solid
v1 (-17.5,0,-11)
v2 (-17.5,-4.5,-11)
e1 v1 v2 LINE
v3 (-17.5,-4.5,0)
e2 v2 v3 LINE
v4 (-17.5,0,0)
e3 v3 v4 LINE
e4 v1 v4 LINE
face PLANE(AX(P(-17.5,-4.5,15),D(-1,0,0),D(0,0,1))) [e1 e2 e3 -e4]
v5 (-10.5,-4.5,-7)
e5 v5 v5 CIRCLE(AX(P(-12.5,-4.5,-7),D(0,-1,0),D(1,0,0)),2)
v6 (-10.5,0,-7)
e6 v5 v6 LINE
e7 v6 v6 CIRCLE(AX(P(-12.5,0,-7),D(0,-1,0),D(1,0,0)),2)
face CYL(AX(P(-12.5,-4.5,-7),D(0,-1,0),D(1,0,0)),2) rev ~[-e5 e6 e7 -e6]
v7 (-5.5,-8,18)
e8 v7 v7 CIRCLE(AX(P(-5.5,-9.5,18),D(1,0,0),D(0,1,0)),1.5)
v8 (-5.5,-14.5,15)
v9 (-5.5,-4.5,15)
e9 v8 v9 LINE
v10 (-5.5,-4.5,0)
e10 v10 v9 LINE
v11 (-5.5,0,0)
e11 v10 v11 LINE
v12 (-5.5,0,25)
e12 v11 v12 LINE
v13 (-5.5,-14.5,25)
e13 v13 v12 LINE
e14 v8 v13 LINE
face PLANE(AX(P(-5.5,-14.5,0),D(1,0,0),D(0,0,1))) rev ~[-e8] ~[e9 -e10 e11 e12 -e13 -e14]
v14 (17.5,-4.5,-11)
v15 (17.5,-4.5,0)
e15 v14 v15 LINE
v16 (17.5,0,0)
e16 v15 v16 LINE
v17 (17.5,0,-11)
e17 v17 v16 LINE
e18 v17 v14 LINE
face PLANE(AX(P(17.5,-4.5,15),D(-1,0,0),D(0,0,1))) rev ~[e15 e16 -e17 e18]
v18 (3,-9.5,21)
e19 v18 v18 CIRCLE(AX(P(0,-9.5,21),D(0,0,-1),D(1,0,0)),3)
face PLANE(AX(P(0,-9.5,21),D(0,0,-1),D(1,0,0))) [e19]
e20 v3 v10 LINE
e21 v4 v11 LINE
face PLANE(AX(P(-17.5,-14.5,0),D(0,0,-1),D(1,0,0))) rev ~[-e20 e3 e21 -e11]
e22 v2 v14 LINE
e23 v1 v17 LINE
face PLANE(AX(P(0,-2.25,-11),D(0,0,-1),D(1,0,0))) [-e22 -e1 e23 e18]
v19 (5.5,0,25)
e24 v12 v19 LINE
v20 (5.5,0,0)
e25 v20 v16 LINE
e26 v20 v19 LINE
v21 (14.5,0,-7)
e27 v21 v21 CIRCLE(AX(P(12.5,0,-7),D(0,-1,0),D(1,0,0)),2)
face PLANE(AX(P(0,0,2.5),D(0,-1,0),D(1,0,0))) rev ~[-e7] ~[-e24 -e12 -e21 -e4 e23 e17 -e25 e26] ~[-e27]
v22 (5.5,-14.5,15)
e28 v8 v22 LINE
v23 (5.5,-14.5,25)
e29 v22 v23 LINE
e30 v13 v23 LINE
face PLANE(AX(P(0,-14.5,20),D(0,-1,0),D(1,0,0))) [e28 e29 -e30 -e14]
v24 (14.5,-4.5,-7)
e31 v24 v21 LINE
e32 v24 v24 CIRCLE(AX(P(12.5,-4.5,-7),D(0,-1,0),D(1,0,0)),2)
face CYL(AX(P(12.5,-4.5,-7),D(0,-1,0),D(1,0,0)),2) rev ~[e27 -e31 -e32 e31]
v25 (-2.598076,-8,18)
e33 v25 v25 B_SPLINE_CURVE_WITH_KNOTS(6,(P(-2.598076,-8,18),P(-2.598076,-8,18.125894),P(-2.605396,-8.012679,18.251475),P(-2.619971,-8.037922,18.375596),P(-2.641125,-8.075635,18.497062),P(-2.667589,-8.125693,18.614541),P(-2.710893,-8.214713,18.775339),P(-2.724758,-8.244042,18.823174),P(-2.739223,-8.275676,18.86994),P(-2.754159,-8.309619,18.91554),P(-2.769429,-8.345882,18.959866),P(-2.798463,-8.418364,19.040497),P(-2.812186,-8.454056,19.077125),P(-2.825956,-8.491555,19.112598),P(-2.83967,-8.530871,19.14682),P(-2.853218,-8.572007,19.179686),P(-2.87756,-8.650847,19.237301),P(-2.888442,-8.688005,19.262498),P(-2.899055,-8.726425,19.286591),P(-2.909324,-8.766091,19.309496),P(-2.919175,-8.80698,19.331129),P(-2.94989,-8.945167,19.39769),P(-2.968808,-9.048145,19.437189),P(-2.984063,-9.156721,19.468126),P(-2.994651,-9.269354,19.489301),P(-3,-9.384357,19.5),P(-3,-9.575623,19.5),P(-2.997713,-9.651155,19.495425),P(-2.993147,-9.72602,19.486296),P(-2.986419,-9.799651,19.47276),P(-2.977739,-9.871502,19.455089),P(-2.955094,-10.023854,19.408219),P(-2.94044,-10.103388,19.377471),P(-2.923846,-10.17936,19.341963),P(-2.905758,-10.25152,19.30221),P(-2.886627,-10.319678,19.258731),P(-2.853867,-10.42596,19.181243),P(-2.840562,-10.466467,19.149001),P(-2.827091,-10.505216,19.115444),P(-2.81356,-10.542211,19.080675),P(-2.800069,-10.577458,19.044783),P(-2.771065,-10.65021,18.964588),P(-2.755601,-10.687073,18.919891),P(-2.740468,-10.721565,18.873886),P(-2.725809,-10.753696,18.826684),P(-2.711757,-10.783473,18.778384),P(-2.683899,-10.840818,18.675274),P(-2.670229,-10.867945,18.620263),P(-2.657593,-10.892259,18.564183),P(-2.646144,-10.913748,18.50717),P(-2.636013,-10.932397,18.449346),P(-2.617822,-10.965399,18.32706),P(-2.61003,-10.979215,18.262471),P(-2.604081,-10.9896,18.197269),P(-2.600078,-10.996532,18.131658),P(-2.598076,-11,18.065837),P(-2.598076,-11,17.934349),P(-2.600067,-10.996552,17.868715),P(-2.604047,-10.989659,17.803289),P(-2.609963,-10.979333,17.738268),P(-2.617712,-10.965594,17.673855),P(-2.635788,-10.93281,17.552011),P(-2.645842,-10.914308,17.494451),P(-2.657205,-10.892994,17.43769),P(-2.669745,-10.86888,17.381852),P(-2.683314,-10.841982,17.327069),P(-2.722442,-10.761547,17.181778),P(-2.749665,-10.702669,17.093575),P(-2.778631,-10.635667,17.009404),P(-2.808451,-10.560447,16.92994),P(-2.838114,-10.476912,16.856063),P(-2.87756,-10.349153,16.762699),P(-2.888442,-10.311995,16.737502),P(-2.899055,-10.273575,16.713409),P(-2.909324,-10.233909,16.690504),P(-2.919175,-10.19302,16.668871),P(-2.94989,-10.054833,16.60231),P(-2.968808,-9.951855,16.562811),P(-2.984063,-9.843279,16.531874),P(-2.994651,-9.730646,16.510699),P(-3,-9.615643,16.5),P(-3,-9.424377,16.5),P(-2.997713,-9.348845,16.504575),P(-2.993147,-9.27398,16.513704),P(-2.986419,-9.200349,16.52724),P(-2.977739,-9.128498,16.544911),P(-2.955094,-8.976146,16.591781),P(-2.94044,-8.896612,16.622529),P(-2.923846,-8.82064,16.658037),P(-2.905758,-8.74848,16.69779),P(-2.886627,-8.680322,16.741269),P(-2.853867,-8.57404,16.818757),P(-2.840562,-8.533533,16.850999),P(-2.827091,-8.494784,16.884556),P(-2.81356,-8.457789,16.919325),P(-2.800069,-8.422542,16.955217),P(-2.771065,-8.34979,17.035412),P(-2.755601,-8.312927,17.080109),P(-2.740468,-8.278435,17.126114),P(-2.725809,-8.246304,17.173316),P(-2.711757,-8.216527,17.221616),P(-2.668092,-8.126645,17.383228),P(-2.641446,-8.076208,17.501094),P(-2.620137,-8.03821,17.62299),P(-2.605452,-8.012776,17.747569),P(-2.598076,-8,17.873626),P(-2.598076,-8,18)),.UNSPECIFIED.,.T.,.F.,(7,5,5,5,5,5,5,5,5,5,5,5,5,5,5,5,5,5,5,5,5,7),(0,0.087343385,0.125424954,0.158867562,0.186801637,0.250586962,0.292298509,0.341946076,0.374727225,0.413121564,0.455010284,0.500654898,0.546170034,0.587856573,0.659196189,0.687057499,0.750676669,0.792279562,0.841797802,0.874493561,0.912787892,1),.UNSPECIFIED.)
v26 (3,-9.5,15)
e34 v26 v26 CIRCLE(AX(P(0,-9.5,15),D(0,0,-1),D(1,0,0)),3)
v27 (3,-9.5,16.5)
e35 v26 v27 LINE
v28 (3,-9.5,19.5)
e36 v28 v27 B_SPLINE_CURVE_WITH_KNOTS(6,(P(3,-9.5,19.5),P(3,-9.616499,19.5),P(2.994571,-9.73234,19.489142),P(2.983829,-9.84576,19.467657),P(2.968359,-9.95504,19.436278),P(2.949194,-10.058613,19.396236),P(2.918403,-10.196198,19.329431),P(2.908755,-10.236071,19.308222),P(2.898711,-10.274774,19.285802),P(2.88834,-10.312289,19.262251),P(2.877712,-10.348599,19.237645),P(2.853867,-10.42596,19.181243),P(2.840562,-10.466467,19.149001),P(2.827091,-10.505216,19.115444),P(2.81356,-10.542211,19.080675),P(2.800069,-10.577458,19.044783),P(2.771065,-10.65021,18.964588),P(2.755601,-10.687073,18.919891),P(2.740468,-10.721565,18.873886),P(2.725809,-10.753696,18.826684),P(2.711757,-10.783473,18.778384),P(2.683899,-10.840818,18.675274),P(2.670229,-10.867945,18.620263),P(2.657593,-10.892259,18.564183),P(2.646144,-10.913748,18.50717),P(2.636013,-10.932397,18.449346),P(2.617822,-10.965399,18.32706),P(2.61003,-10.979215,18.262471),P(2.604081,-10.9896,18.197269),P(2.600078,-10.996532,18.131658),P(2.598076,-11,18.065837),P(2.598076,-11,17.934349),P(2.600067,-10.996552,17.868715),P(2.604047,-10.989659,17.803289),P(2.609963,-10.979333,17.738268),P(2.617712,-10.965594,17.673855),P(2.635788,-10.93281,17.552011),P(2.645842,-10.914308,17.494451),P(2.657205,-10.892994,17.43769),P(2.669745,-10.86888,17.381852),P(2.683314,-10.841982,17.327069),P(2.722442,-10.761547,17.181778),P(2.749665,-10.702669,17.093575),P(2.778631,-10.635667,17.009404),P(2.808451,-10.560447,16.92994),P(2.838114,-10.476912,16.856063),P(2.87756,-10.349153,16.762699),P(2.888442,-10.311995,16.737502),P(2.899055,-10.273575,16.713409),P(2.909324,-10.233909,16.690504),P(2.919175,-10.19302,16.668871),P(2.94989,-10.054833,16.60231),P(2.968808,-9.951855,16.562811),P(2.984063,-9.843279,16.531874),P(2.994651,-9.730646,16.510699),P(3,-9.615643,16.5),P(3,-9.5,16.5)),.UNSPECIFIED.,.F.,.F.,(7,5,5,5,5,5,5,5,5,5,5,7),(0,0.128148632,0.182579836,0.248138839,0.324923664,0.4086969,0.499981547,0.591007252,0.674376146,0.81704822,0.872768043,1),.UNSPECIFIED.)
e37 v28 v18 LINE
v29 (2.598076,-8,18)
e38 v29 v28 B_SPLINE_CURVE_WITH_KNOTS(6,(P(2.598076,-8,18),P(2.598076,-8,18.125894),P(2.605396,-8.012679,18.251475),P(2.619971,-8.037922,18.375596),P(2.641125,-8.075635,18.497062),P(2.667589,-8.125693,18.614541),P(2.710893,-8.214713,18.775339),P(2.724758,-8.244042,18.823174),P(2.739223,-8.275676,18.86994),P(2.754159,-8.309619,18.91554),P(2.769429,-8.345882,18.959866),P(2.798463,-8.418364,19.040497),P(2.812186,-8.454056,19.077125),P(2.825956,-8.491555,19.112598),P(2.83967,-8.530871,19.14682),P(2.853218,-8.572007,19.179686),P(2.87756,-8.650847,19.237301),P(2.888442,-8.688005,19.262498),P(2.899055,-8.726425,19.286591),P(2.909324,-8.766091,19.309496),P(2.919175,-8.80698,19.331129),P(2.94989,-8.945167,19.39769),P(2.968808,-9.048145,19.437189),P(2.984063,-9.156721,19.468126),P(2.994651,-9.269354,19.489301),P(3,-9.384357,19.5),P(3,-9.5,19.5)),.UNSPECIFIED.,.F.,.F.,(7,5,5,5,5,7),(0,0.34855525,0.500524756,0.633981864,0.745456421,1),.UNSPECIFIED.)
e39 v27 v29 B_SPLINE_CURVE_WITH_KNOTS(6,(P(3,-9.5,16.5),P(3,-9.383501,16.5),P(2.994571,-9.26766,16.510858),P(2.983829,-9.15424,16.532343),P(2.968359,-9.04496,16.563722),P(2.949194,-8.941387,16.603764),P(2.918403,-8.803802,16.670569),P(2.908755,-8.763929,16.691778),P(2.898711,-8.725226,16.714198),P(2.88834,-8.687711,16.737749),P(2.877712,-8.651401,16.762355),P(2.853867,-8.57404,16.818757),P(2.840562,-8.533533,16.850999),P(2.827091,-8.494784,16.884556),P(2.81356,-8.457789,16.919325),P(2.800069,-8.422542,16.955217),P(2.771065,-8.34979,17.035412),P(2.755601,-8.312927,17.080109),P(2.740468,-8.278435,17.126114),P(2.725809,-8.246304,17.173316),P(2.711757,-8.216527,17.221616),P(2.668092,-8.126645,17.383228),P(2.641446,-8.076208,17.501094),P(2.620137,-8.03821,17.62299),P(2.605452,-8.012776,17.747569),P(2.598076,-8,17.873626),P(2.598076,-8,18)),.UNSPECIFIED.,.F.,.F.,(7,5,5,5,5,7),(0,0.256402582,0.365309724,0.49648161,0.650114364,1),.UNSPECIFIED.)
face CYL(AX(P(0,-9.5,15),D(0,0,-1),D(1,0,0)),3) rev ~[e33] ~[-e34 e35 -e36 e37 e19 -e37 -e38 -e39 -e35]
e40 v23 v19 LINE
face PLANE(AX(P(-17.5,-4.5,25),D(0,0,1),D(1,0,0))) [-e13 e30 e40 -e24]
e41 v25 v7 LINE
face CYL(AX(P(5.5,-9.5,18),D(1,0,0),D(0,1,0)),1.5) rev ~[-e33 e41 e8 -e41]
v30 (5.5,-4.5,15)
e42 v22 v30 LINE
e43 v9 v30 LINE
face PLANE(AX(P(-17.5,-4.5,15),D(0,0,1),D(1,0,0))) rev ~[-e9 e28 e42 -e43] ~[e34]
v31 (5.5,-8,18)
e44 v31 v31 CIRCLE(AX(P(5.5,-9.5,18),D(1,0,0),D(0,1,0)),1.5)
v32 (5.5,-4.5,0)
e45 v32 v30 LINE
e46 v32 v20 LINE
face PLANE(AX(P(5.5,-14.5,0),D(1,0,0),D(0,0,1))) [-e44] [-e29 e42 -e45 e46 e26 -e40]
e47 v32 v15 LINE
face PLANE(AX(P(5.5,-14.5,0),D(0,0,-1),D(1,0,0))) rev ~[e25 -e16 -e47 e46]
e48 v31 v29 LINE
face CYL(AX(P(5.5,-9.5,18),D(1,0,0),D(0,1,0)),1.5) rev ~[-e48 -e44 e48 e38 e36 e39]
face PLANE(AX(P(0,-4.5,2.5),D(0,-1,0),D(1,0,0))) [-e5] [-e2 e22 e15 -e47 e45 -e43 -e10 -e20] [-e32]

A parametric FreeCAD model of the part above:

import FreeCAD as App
import Part
import Sketcher
from FreeCAD import Vector


def add_polygon(sketch, points):
    """Adds a closed chain of lines whose ends are joined by coincident constraints."""
    first, n = sketch.GeometryCount, len(points)
    for a, b in zip(points, points[1:] + points[:1]):
        sketch.addGeometry(Part.LineSegment(App.Vector(*a, 0), App.Vector(*b, 0)), False)
    for i in range(n):
        sketch.addConstraint(Sketcher.Constraint("Coincident", first + i, 2, first + (i + 1) % n, 1))

doc = App.newDocument("Part")
params = doc.addObject("Spreadsheet::Sheet", "Params")
for row, (alias, value) in enumerate([
    ("sketch1_width", "35 mm"),
    ("sketch1_height", "45 mm"),
    ("pad1_length", "4.5 mm"),
    ("sketch2_diameter", "4 mm"),
    ("pocket1_length", "10 mm"),
    ("sketch3_width", "35 mm"),
    ("sketch3_height", "10 mm"),
    ("pad2_length", "10 mm"),
    ("sketch4_diameter", "6 mm"),
    ("pocket2_length", "6 mm"),
    ("sketch5_width", "35 mm"),
    ("sketch5_height", "4.5 mm"),
    ("pocket3_length", "2 mm"),
    ("sketch6_width", "12 mm"),
    ("sketch6_height", "25 mm"),
    ("sketch7_diameter", "3 mm"),
    ("sketch8_width", "35 mm"),
    ("sketch8_height", "6 mm"),
    ("sketch9_width", "35 mm"),
    ("sketch9_height", "4.5 mm"),
    ("pocket7_length", "1 mm"),
], start=1):
    params.set(f"A{row}", alias)
    params.set(f"B{row}", "=" + value)
    params.setAlias(f"B{row}", alias)

body = doc.addObject("PartDesign::Body", "Body")

sketch1 = doc.addObject("Sketcher::SketchObject", "Sketch")
body.addObject(sketch1)
sketch1.AttachmentSupport = (doc.XZ_Plane, [""])
sketch1.MapMode = "FlatFace"
add_polygon(sketch1, [(-17.5, 25), (-17.5, -20), (17.5, -20), (17.5, 25)])
sketch1.addConstraint([
    Sketcher.Constraint("Vertical", 0),
    Sketcher.Constraint("Horizontal", 1),
    Sketcher.Constraint("Vertical", 2),
    Sketcher.Constraint("Horizontal", 3),
    Sketcher.Constraint("DistanceX", 1, 1, 1, 2, 35.0),
    Sketcher.Constraint("DistanceY", 0, 2, 0, 1, 45.0),
    Sketcher.Constraint("DistanceY", 0, 2, -1, 1, 20.0),
    Sketcher.Constraint("DistanceX", 0, 2, -1, 1, 17.5),
])
sketch1.setExpression("Constraints[8]", "Params.sketch1_width")
sketch1.setExpression("Constraints[9]", "Params.sketch1_height")
pad1 = doc.addObject("PartDesign::Pad", "Pad")
body.addObject(pad1)
pad1.Profile = sketch1
pad1.setExpression("Length", "Params.pad1_length")

sketch2 = doc.addObject("Sketcher::SketchObject", "Sketch001")
body.addObject(sketch2)
sketch2.AttachmentSupport = (doc.XZ_Plane, [""])
sketch2.MapMode = "FlatFace"
sketch2.AttachmentOffset = App.Placement(Vector(0, 0, 4.5), App.Rotation())
sketch2.addGeometry([
    Part.Circle(Vector(12.5, -15, 0), Vector(0, 0, 1), 2),
    Part.Circle(Vector(-12.5, -15, 0), Vector(0, 0, 1), 2),
    Part.Circle(Vector(-12.5, -7, 0), Vector(0, 0, 1), 2),
    Part.Circle(Vector(12.5, -7, 0), Vector(0, 0, 1), 2),
], False)
sketch2.addConstraint([
    Sketcher.Constraint("Equal", 0, 1),
    Sketcher.Constraint("Equal", 1, 2),
    Sketcher.Constraint("Equal", 2, 3),
    Sketcher.Constraint("Symmetric", 0, 3, 1, 3, -2),
    Sketcher.Constraint("Symmetric", 2, 3, 3, 3, -2),
    Sketcher.Constraint("Vertical", 1, 3, 2, 3),
    Sketcher.Constraint("Diameter", 0, 4.0),
    Sketcher.Constraint("DistanceY", 0, 3, -1, 1, 15.0),
    Sketcher.Constraint("DistanceY", 2, 3, -1, 1, 7.0),
    Sketcher.Constraint("DistanceX", 1, 3, 0, 3, 25.0),
])
sketch2.setExpression("Constraints[6]", "Params.sketch2_diameter")
pocket1 = doc.addObject("PartDesign::Pocket", "Pocket")
body.addObject(pocket1)
pocket1.Profile = sketch2
pocket1.setExpression("Length", "Params.pocket1_length")

sketch3 = doc.addObject("Sketcher::SketchObject", "Sketch002")
body.addObject(sketch3)
sketch3.AttachmentSupport = (doc.XZ_Plane, [""])
sketch3.MapMode = "FlatFace"
sketch3.AttachmentOffset = App.Placement(Vector(0, 0, 4.5), App.Rotation())
add_polygon(sketch3, [(-17.5, 25), (-17.5, 15), (17.5, 15), (17.5, 25)])
sketch3.addConstraint([
    Sketcher.Constraint("Vertical", 0),
    Sketcher.Constraint("Horizontal", 1),
    Sketcher.Constraint("Vertical", 2),
    Sketcher.Constraint("Horizontal", 3),
    Sketcher.Constraint("DistanceX", 1, 1, 1, 2, 35.0),
    Sketcher.Constraint("DistanceY", 0, 2, 0, 1, 10.0),
    Sketcher.Constraint("DistanceY", -1, 1, 0, 2, 15.0),
    Sketcher.Constraint("DistanceX", 0, 2, -1, 1, 17.5),
])
sketch3.setExpression("Constraints[8]", "Params.sketch3_width")
sketch3.setExpression("Constraints[9]", "Params.sketch3_height")
pad2 = doc.addObject("PartDesign::Pad", "Pad001")
body.addObject(pad2)
pad2.Profile = sketch3
pad2.setExpression("Length", "Params.pad2_length")

sketch4 = doc.addObject("Sketcher::SketchObject", "Sketch003")
body.addObject(sketch4)
sketch4.AttachmentSupport = (doc.XY_Plane, [""])
sketch4.MapMode = "FlatFace"
sketch4.AttachmentOffset = App.Placement(Vector(0, 0, 15), App.Rotation())
sketch4.addGeometry(Part.Circle(Vector(0, -9.5, 0), Vector(0, 0, 1), 3), False)
sketch4.addConstraint([
    Sketcher.Constraint("PointOnObject", 0, 3, -2),
    Sketcher.Constraint("Diameter", 0, 6.0),
    Sketcher.Constraint("DistanceY", 0, 3, -1, 1, 9.5),
])
sketch4.setExpression("Constraints[1]", "Params.sketch4_diameter")
pocket2 = doc.addObject("PartDesign::Pocket", "Pocket001")
body.addObject(pocket2)
pocket2.Profile = sketch4
pocket2.setExpression("Length", "Params.pocket2_length")
pocket2.Reversed = True

sketch5 = doc.addObject("Sketcher::SketchObject", "Sketch004")
body.addObject(sketch5)
sketch5.AttachmentSupport = (doc.XY_Plane, [""])
sketch5.MapMode = "FlatFace"
sketch5.AttachmentOffset = App.Placement(Vector(0, 0, -20), App.Rotation())
add_polygon(sketch5, [(-17.5, -4.5), (-17.5, 0), (17.5, 0), (17.5, -4.5)])
sketch5.addConstraint([
    Sketcher.Constraint("Vertical", 0),
    Sketcher.Constraint("Horizontal", 1),
    Sketcher.Constraint("Vertical", 2),
    Sketcher.Constraint("Horizontal", 3),
    Sketcher.Constraint("Symmetric", 0, 2, 1, 2, -1, 1),
    Sketcher.Constraint("DistanceX", 1, 1, 1, 2, 35.0),
    Sketcher.Constraint("DistanceY", 0, 1, 0, 2, 4.5),
])
sketch5.setExpression("Constraints[9]", "Params.sketch5_width")
sketch5.setExpression("Constraints[10]", "Params.sketch5_height")
pocket3 = doc.addObject("PartDesign::Pocket", "Pocket002")
body.addObject(pocket3)
pocket3.Profile = sketch5
pocket3.setExpression("Length", "Params.pocket3_length")
pocket3.Reversed = True

sketch6 = doc.addObject("Sketcher::SketchObject", "Sketch005")
body.addObject(sketch6)
sketch6.AttachmentSupport = (doc.XZ_Plane, [""])
sketch6.MapMode = "FlatFace"
sketch6.AttachmentOffset = App.Placement(Vector(0, 0, 14.5), App.Rotation())
add_polygon(sketch6, [(-17.5, 25), (-17.5, 0), (-5.5, 0), (-5.5, 25)])
add_polygon(sketch6, [(5.5, 25), (5.5, 0), (17.5, 0), (17.5, 25)])
sketch6.addConstraint([
    Sketcher.Constraint("Vertical", 0),
    Sketcher.Constraint("Horizontal", 1),
    Sketcher.Constraint("Vertical", 2),
    Sketcher.Constraint("Horizontal", 3),
    Sketcher.Constraint("Vertical", 4),
    Sketcher.Constraint("Horizontal", 5),
    Sketcher.Constraint("Vertical", 6),
    Sketcher.Constraint("Horizontal", 7),
    Sketcher.Constraint("Symmetric", 1, 2, 4, 2, -1, 1),
    Sketcher.Constraint("Symmetric", 0, 2, 5, 2, -2),
    Sketcher.Constraint("Horizontal", 3, 2, 6, 2),
    Sketcher.Constraint("DistanceX", 1, 1, 1, 2, 12.0),
    Sketcher.Constraint("DistanceY", 0, 2, 0, 1, 25.0),
    Sketcher.Constraint("DistanceX", 1, 2, 4, 2, 11.0),
])
sketch6.setExpression("Constraints[19]", "Params.sketch6_width")
sketch6.setExpression("Constraints[20]", "Params.sketch6_height")
pocket4 = doc.addObject("PartDesign::Pocket", "Pocket003")
body.addObject(pocket4)
pocket4.Profile = sketch6
pocket4.Type = "ThroughAll"

sketch7 = doc.addObject("Sketcher::SketchObject", "Sketch006")
body.addObject(sketch7)
sketch7.AttachmentSupport = (doc.YZ_Plane, [""])
sketch7.MapMode = "FlatFace"
sketch7.AttachmentOffset = App.Placement(Vector(0, 0, 5.5), App.Rotation())
sketch7.addGeometry(Part.Circle(Vector(-9.5, 18, 0), Vector(0, 0, 1), 1.5), False)
sketch7.addConstraint([
    Sketcher.Constraint("Diameter", 0, 3.0),
    Sketcher.Constraint("DistanceY", -1, 1, 0, 3, 18.0),
    Sketcher.Constraint("DistanceX", 0, 3, -1, 1, 9.5),
])
sketch7.setExpression("Constraints[0]", "Params.sketch7_diameter")
pocket5 = doc.addObject("PartDesign::Pocket", "Pocket004")
body.addObject(pocket5)
pocket5.Profile = sketch7
pocket5.Type = "ThroughAll"

sketch8 = doc.addObject("Sketcher::SketchObject", "Sketch007")
body.addObject(sketch8)
sketch8.AttachmentSupport = (doc.XZ_Plane, [""])
sketch8.MapMode = "FlatFace"
sketch8.AttachmentOffset = App.Placement(Vector(0, 0, 4.5), App.Rotation())
add_polygon(sketch8, [(-17.5, -12), (-17.5, -18), (17.5, -18), (17.5, -12)])
sketch8.addConstraint([
    Sketcher.Constraint("Vertical", 0),
    Sketcher.Constraint("Horizontal", 1),
    Sketcher.Constraint("Vertical", 2),
    Sketcher.Constraint("Horizontal", 3),
    Sketcher.Constraint("DistanceX", 1, 1, 1, 2, 35.0),
    Sketcher.Constraint("DistanceY", 0, 2, 0, 1, 6.0),
    Sketcher.Constraint("DistanceY", 0, 2, -1, 1, 18.0),
    Sketcher.Constraint("DistanceX", 0, 2, -1, 1, 17.5),
])
sketch8.setExpression("Constraints[8]", "Params.sketch8_width")
sketch8.setExpression("Constraints[9]", "Params.sketch8_height")
pocket6 = doc.addObject("PartDesign::Pocket", "Pocket005")
body.addObject(pocket6)
pocket6.Profile = sketch8
pocket6.Type = "ThroughAll"

sketch9 = doc.addObject("Sketcher::SketchObject", "Sketch008")
body.addObject(sketch9)
sketch9.AttachmentSupport = (doc.XY_Plane, [""])
sketch9.MapMode = "FlatFace"
sketch9.AttachmentOffset = App.Placement(Vector(0, 0, -12), App.Rotation())
add_polygon(sketch9, [(-17.5, -4.5), (-17.5, 0), (17.5, 0), (17.5, -4.5)])
sketch9.addConstraint([
    Sketcher.Constraint("Vertical", 0),
    Sketcher.Constraint("Horizontal", 1),
    Sketcher.Constraint("Vertical", 2),
    Sketcher.Constraint("Horizontal", 3),
    Sketcher.Constraint("Symmetric", 0, 2, 1, 2, -1, 1),
    Sketcher.Constraint("DistanceX", 1, 1, 1, 2, 35.0),
    Sketcher.Constraint("DistanceY", 0, 1, 0, 2, 4.5),
])
sketch9.setExpression("Constraints[9]", "Params.sketch9_width")
sketch9.setExpression("Constraints[10]", "Params.sketch9_height")
pocket7 = doc.addObject("PartDesign::Pocket", "Pocket006")
body.addObject(pocket7)
pocket7.Profile = sketch9
pocket7.setExpression("Length", "Params.pocket7_length")
pocket7.Reversed = True

doc.recompute()
